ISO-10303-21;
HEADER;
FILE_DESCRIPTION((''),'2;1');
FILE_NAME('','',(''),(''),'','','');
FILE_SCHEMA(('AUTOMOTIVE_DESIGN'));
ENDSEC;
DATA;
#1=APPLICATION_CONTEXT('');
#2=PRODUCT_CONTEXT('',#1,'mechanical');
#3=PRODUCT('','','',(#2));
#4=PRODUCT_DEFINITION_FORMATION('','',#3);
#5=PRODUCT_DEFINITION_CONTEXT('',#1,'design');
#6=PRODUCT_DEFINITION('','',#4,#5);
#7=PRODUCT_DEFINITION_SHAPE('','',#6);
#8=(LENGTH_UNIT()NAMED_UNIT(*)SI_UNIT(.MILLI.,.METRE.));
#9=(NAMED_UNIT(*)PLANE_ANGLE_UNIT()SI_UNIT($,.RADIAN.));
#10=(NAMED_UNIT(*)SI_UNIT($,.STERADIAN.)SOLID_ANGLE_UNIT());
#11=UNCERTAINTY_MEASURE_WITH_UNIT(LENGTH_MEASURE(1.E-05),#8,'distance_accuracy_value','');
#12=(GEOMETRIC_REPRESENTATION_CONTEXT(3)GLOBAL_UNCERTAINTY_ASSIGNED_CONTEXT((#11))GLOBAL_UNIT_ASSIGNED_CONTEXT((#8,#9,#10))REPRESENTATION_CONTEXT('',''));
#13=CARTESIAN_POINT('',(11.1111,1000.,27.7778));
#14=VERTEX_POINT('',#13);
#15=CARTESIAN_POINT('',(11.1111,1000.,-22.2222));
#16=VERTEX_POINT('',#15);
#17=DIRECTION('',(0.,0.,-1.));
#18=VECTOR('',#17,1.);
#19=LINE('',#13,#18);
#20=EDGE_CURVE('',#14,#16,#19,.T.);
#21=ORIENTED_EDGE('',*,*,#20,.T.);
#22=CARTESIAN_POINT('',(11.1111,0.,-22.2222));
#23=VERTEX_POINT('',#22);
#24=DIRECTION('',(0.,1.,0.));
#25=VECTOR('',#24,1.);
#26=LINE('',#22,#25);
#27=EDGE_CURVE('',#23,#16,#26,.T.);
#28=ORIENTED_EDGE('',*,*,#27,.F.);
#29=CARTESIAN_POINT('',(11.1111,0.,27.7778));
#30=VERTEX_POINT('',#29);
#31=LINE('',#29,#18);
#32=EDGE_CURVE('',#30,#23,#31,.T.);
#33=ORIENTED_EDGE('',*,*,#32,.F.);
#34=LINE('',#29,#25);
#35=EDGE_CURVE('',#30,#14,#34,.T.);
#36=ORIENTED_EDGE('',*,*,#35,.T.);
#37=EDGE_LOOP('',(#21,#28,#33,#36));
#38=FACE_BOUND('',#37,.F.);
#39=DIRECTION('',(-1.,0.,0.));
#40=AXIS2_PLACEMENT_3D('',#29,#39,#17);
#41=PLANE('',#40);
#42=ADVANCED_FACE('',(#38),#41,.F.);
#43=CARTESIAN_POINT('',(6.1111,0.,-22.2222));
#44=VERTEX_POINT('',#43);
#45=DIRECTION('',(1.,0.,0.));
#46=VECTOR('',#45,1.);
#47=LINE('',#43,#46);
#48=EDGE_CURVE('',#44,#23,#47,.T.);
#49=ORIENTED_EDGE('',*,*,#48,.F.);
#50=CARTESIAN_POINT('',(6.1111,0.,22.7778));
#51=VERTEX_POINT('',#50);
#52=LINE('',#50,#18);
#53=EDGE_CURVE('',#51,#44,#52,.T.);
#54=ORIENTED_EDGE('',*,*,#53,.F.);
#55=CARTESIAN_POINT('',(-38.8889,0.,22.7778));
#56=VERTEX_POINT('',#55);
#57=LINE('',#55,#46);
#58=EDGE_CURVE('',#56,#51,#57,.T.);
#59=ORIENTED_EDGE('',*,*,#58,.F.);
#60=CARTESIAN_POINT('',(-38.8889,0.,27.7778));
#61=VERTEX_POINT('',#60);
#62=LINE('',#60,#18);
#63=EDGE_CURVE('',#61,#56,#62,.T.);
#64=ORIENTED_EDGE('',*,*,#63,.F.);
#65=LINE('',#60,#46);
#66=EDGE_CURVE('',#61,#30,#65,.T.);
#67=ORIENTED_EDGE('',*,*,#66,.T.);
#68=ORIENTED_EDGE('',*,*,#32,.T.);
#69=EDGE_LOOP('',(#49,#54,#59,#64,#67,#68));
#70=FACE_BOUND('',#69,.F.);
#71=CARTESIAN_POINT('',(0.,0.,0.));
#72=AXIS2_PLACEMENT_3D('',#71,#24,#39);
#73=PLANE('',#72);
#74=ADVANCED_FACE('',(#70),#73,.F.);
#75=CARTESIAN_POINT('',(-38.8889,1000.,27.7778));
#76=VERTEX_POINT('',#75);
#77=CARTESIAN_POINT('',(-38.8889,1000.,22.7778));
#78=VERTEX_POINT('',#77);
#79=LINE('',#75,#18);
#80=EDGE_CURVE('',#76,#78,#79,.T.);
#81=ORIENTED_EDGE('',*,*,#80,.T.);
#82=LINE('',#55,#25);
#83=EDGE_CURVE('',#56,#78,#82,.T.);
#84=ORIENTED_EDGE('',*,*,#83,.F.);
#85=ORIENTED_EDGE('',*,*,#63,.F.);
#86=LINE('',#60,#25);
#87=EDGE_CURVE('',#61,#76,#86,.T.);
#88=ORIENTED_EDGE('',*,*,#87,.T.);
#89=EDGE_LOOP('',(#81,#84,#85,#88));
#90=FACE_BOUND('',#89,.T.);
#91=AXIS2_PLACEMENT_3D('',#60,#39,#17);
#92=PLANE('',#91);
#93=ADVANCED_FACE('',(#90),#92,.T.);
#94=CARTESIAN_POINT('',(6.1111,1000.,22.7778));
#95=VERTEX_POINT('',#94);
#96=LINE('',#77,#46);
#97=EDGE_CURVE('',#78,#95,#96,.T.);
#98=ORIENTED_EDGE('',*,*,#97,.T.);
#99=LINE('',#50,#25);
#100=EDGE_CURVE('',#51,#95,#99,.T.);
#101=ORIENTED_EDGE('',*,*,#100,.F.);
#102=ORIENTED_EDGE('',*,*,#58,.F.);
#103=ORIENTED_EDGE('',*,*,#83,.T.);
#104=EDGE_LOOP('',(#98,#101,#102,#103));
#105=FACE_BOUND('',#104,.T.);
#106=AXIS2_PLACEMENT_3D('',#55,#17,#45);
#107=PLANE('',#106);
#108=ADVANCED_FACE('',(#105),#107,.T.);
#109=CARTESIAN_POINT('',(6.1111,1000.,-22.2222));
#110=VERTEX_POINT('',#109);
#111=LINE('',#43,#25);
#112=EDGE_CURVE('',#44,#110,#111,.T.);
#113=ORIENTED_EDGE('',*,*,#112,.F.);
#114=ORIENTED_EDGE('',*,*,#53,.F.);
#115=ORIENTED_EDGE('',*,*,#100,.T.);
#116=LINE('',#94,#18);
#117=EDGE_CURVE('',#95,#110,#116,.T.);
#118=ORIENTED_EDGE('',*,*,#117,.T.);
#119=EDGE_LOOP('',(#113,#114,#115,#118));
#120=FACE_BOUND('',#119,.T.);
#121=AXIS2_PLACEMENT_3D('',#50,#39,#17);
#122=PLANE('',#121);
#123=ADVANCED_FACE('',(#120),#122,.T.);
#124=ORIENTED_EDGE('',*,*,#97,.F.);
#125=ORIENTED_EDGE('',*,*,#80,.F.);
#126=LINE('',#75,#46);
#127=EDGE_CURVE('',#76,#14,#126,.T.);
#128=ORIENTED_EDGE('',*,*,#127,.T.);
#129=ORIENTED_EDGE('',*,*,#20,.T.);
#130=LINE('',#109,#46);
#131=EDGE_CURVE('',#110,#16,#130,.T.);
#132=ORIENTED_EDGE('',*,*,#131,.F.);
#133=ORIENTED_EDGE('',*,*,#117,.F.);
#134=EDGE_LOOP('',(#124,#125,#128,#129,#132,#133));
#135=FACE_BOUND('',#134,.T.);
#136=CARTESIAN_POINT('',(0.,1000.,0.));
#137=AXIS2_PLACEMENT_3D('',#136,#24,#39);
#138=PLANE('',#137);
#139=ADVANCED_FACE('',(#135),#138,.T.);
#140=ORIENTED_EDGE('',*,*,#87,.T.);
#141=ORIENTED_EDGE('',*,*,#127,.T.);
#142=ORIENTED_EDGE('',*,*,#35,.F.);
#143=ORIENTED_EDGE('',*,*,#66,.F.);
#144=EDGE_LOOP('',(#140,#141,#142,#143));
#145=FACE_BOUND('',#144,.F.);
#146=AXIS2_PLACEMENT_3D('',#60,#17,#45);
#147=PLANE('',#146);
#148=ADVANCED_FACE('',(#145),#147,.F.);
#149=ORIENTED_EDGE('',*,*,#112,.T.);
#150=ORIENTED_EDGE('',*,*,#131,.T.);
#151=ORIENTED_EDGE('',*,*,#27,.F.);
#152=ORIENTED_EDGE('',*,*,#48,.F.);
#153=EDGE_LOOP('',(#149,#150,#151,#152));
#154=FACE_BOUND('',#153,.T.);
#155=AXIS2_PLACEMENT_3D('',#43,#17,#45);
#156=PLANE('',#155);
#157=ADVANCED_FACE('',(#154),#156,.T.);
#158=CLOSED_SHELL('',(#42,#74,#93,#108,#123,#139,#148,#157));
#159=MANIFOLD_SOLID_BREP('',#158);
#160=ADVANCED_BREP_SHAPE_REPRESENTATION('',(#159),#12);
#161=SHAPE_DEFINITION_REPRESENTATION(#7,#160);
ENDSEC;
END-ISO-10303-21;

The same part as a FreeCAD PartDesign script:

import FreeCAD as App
import Part
import Sketcher

doc = App.newDocument("Part")
body = doc.addObject("PartDesign::Body", "Body")

# Sketch on XZ plane
sketch1 = doc.addObject("Sketcher::SketchObject", "Sketch")
body.addObject(sketch1)
sketch1.AttachmentSupport = (doc.XZ_Plane, [""])
sketch1.MapMode = "FlatFace"
sketch1.addGeometry([
    Part.LineSegment(App.Vector(-39, 23, 0), App.Vector(-39, 28, 0)),  # 0
    Part.LineSegment(App.Vector(-39, 28, 0), App.Vector(11, 28, 0)),  # 1
    Part.LineSegment(App.Vector(11, 28, 0), App.Vector(11, -22, 0)),  # 2
    Part.LineSegment(App.Vector(11, -22, 0), App.Vector(6, -22, 0)),  # 3
    Part.LineSegment(App.Vector(6, -22, 0), App.Vector(6, 23, 0)),  # 4
    Part.LineSegment(App.Vector(6, 23, 0), App.Vector(-39, 23, 0)),  # 5
], False)
sketch1.addConstraint([
    Sketcher.Constraint("Coincident", 0, 2, 1, 1),
    Sketcher.Constraint("Coincident", 1, 2, 2, 1),
    Sketcher.Constraint("Coincident", 2, 2, 3, 1),
    Sketcher.Constraint("Coincident", 3, 2, 4, 1),
    Sketcher.Constraint("Coincident", 4, 2, 5, 1),
    Sketcher.Constraint("Coincident", 5, 2, 0, 1),
    Sketcher.Constraint("Vertical", 0),
    Sketcher.Constraint("Horizontal", 1),
    Sketcher.Constraint("Vertical", 2),
    Sketcher.Constraint("Horizontal", 3),
    Sketcher.Constraint("Vertical", 4),
    Sketcher.Constraint("Horizontal", 5),
    Sketcher.Constraint("Equal", 3, 0),
    Sketcher.Constraint("Equal", 1, 2),
    Sketcher.Constraint("DistanceX", 1, 1, 1, 2, 50.0),
    Sketcher.Constraint("DistanceX", 3, 2, 3, 1, 5.0),
    Sketcher.Constraint("DistanceX", 0, 2, -1, 1, 38.889),
    Sketcher.Constraint("DistanceY", -1, 1, 0, 2, 27.7778),
])
pad1 = doc.addObject("PartDesign::Pad", "Pad")
body.addObject(pad1)
pad1.Profile = sketch1
pad1.Length = 1000
pad1.Reversed = True

doc.recompute()
